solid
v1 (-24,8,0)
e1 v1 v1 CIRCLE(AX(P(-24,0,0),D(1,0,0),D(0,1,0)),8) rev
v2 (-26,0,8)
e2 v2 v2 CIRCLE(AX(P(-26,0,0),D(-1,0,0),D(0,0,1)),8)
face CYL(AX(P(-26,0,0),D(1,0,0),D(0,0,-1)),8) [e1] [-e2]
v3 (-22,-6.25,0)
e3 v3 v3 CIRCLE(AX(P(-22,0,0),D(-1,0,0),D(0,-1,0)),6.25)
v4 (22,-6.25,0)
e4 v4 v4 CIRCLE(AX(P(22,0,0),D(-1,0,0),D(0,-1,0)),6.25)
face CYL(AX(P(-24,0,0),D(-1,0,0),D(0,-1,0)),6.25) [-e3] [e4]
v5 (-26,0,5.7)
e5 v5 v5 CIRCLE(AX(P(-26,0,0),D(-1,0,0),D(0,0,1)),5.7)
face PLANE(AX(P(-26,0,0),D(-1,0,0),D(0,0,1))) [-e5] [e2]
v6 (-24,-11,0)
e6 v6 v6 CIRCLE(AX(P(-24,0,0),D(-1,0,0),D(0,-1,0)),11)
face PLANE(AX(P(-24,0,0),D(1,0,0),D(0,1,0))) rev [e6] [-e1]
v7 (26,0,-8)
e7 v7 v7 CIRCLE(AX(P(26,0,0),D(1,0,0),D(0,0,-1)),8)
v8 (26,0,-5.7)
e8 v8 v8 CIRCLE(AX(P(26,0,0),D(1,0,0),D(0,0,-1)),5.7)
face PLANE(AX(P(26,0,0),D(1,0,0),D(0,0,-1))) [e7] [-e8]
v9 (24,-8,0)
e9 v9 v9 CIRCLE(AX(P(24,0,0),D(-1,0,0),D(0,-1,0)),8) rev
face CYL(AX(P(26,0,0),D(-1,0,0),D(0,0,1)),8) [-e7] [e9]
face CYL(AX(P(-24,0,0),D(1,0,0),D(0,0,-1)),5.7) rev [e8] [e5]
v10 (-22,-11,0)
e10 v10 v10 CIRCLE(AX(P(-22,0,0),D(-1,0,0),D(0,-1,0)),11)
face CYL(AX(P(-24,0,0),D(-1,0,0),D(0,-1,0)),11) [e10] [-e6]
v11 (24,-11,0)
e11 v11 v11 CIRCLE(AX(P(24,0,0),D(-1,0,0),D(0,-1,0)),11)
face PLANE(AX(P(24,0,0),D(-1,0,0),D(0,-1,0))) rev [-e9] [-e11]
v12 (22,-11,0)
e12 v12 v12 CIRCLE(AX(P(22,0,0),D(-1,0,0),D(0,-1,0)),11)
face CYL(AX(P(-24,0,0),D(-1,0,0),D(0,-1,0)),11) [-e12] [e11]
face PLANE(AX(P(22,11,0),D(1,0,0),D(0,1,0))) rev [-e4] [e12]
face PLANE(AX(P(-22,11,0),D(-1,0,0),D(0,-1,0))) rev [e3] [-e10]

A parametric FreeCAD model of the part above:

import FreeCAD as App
import Part
import Sketcher

V = App.Vector


def add_polygon(sketch, points):
    """Adds a closed chain of lines whose ends are joined by coincident constraints."""
    first, n = sketch.GeometryCount, len(points)
    for a, b in zip(points, points[1:] + points[:1]):
        sketch.addGeometry(Part.LineSegment(App.Vector(*a, 0), App.Vector(*b, 0)), False)
    for i in range(n):
        sketch.addConstraint(Sketcher.Constraint("Coincident", first + i, 2, first + (i + 1) % n, 1))

doc = App.newDocument("Part")
body = doc.addObject("PartDesign::Body", "Body")

sketch1 = body.newObject("Sketcher::SketchObject", "Sketch")
sketch1.AttachmentSupport = (doc.getObject("XY_Plane"), [""])
sketch1.MapMode = "FlatFace"
add_polygon(sketch1, [(-24, 0), (24, 0), (24, 11), (22, 11), (22, 6.25), (-22, 6.25), (-22, 11), (-24, 11)])
sketch1.addConstraint(Sketcher.Constraint("Horizontal", 0))
sketch1.addConstraint(Sketcher.Constraint("Vertical", 1))
sketch1.addConstraint(Sketcher.Constraint("Horizontal", 2))
sketch1.addConstraint(Sketcher.Constraint("Vertical", 3))
sketch1.addConstraint(Sketcher.Constraint("Horizontal", 4))
sketch1.addConstraint(Sketcher.Constraint("Vertical", 5))
sketch1.addConstraint(Sketcher.Constraint("Horizontal", 6))
sketch1.addConstraint(Sketcher.Constraint("Vertical", 7))
sketch1.addConstraint(Sketcher.Constraint("Symmetric", 0, 2, 7, 2, -1, 1))
sketch1.addConstraint(Sketcher.Constraint("Symmetric", 2, 2, 5, 2, -2))
sketch1.addConstraint(Sketcher.Constraint("DistanceX", 0, 1, 0, 2, 48.0))
sketch1.addConstraint(Sketcher.Constraint("DistanceX", 2, 2, 2, 1, 2.0))
sketch1.addConstraint(Sketcher.Constraint("DistanceY", 1, 1, 1, 2, 11.0))
sketch1.addConstraint(Sketcher.Constraint("DistanceY", 3, 2, 3, 1, 4.75))
revolution = body.newObject("PartDesign::Revolution", "Revolution")
revolution.Profile = sketch1
revolution.ReferenceAxis = (sketch1, ["H_Axis"])
revolution.Angle = 360

sketch2 = body.newObject("Sketcher::SketchObject", "Sketch001")
sketch2.AttachmentSupport = (doc.getObject("YZ_Plane"), [""])
sketch2.MapMode = "FlatFace"
sketch2.AttachmentOffset = App.Placement(V(0, 0, 24), App.Rotation())
sketch2.addGeometry(Part.Circle(V(0, 0, 0), V(0, 0, 1), 5.7), False)
sketch2.addConstraint(Sketcher.Constraint("Coincident", 0, 3, -1, 1))
sketch2.addConstraint(Sketcher.Constraint("Diameter", 0, 11.4))
pocket1 = body.newObject("PartDesign::Pocket", "Pocket")
pocket1.Profile = sketch2
pocket1.Type = "ThroughAll"

sketch3 = body.newObject("Sketcher::SketchObject", "Sketch002")
sketch3.AttachmentSupport = (doc.getObject("YZ_Plane"), [""])
sketch3.MapMode = "FlatFace"
sketch3.AttachmentOffset = App.Placement(V(0, 0, 24), App.Rotation())
sketch3.addGeometry(Part.Circle(V(0, 0, 0), V(0, 0, 1), 8), False)
sketch3.addGeometry(Part.Circle(V(0, 0, 0), V(0, 0, 1), 5.7), False)
sketch3.addConstraint(Sketcher.Constraint("Coincident", 0, 3, -1, 1))
sketch3.addConstraint(Sketcher.Constraint("Coincident", 1, 3, -1, 1))
sketch3.addConstraint(Sketcher.Constraint("Diameter", 0, 16.0))
sketch3.addConstraint(Sketcher.Constraint("Diameter", 1, 11.4))
pad1 = body.newObject("PartDesign::Pad", "Pad")
pad1.Profile = sketch3
pad1.Length = 2

sketch4 = body.newObject("Sketcher::SketchObject", "Sketch003")
sketch4.AttachmentSupport = (doc.getObject("YZ_Plane"), [""])
sketch4.MapMode = "FlatFace"
sketch4.AttachmentOffset = App.Placement(V(0, 0, -24), App.Rotation())
sketch4.addGeometry(Part.Circle(V(0, 0, 0), V(0, 0, 1), 8), False)
sketch4.addGeometry(Part.Circle(V(0, 0, 0), V(0, 0, 1), 5.7), False)
sketch4.addConstraint(Sketcher.Constraint("Coincident", 0, 3, -1, 1))
sketch4.addConstraint(Sketcher.Constraint("Coincident", 1, 3, -1, 1))
sketch4.addConstraint(Sketcher.Constraint("Diameter", 0, 16.0))
sketch4.addConstraint(Sketcher.Constraint("Diameter", 1, 11.4))
pad2 = body.newObject("PartDesign::Pad", "Pad001")
pad2.Profile = sketch4
pad2.Length = 2
pad2.Reversed = True

doc.recompute()
